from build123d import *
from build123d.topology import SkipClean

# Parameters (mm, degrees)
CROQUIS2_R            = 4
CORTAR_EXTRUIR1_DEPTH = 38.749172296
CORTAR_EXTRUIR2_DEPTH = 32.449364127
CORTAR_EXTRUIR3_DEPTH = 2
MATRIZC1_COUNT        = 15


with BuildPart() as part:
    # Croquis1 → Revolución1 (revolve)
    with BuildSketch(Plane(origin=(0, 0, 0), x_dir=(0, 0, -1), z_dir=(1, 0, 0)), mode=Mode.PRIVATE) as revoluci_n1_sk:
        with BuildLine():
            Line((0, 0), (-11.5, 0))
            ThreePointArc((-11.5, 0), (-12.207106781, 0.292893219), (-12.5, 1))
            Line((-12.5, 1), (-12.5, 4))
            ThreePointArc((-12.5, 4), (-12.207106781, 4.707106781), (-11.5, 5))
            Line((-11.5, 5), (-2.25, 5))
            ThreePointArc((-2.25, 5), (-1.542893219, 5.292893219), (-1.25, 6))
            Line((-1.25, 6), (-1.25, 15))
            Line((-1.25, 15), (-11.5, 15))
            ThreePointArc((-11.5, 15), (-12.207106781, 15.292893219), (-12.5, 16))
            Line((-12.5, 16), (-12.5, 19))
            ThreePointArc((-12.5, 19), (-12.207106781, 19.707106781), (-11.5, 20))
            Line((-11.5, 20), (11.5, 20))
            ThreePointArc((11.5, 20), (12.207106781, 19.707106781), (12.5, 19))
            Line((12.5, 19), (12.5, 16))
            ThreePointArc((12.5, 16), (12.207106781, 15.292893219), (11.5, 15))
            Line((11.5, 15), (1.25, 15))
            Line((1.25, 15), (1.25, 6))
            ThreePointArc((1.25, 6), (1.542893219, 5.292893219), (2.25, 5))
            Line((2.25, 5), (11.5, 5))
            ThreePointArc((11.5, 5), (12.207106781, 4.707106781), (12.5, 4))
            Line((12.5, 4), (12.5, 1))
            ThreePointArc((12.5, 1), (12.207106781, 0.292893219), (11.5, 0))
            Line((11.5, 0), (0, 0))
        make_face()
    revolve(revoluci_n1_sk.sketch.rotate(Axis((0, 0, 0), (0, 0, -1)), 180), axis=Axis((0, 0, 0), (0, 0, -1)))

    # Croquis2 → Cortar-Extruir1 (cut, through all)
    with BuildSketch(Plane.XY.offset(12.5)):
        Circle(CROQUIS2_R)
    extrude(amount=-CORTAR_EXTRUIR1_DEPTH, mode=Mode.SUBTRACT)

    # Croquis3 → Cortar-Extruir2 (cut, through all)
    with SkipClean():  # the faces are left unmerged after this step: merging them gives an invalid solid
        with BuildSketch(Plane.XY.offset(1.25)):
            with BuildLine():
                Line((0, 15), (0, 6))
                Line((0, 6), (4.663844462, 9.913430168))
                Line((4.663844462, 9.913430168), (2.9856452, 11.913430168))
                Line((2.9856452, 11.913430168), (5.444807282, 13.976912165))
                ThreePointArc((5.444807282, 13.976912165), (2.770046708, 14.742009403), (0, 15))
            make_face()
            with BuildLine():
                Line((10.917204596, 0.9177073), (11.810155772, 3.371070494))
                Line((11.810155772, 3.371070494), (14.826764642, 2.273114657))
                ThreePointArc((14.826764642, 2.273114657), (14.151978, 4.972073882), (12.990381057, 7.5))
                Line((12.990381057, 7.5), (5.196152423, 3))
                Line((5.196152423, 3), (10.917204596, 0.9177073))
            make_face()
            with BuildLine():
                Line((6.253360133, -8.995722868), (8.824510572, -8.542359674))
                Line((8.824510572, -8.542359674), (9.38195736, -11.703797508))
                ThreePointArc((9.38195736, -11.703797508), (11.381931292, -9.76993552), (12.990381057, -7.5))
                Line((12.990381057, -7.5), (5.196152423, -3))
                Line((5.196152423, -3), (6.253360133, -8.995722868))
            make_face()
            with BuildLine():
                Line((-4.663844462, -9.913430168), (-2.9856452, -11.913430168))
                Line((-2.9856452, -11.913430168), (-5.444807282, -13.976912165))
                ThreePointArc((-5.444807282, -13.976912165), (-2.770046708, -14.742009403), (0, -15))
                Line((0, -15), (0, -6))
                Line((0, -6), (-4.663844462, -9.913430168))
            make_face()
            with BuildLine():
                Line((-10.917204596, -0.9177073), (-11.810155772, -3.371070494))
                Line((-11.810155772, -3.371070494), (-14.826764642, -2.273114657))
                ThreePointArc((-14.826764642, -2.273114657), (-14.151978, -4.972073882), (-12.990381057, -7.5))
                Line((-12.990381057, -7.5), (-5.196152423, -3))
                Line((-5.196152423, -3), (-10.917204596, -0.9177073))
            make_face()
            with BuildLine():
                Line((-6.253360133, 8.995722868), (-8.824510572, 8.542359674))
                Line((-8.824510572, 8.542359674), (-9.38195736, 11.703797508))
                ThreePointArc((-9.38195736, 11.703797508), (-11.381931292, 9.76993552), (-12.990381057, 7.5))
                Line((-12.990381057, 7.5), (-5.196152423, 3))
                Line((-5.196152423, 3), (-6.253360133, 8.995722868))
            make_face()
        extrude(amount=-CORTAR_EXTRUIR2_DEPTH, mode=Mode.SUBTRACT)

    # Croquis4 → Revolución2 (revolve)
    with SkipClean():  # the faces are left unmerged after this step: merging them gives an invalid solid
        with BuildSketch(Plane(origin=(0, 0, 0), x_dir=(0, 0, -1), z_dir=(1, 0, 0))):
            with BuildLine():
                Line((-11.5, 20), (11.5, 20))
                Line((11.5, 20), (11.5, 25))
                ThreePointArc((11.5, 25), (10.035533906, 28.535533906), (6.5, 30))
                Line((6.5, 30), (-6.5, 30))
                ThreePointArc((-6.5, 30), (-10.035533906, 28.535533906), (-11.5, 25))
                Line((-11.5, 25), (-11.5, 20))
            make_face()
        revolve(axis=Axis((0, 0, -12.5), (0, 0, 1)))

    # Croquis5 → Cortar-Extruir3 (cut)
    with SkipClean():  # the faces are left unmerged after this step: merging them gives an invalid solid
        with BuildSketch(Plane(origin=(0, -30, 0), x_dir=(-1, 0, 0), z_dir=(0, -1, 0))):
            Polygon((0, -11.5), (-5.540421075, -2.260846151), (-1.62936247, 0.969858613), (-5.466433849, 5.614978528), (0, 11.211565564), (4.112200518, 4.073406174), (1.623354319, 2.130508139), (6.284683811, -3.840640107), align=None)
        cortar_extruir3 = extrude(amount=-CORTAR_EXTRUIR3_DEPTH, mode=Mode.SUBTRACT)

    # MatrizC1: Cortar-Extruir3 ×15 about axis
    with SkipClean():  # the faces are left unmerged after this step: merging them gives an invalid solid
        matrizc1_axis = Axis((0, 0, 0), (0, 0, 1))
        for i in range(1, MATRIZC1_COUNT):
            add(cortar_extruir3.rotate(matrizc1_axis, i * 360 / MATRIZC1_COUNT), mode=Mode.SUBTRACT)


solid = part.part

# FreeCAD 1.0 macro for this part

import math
import FreeCAD as App
import Part
import Sketcher
Q = App.Units.Quantity

doc = App.newDocument("Part")
params = doc.addObject("Spreadsheet::Sheet", "Params")
for row, (alias, value) in enumerate([
    ("sketch1_radius", "1 mm"),
    ("sketch1_width", "3 mm"),
    ("sketch1_width2", "9 mm"),
    ("sketch1_height", "23 mm"),
    ("sketch1_height2", "9.25 mm"),
    ("revolution_angle", "360 deg"),
    ("sketch2_diameter", "8 mm"),
    ("sketch3_radius", "15 mm"),
    ("sketch3_height", "9 mm"),
    ("sketch4_radius", "5 mm"),
    ("sketch4_width", "5 mm"),
    ("sketch4_height", "23 mm"),
    ("revolution2_angle", "360 deg"),
    ("pocket3_length", "2 mm"),
], start=1):
    params.set(f"A{row}", alias)
    params.set(f"B{row}", "=" + value)
    params.setAlias(f"B{row}", alias)

body = doc.addObject("PartDesign::Body", "Body")

sketch1 = doc.addObject("Sketcher::SketchObject", "Sketch")
body.addObject(sketch1)
sketch1.AttachmentSupport = (doc.YZ_Plane, [""])
sketch1.MapMode = "FlatFace"
sketch1.addGeometry(Part.ArcOfCircle(Part.Circle(App.Vector(1, 11.5, 0), App.Vector(0, 0, 1), 1), math.radians(90), math.radians(180)), False)
sketch1.addGeometry(Part.LineSegment(App.Vector(0, 11.5, 0), App.Vector(0, -11.5, 0)), False)
sketch1.addGeometry(Part.ArcOfCircle(Part.Circle(App.Vector(1, -11.5, 0), App.Vector(0, 0, 1), 1), math.radians(-180), math.radians(-90)), False)
sketch1.addGeometry(Part.LineSegment(App.Vector(1, -12.5, 0), App.Vector(4, -12.5, 0)), False)
sketch1.addGeometry(Part.ArcOfCircle(Part.Circle(App.Vector(4, -11.5, 0), App.Vector(0, 0, 1), 1), math.radians(-90), math.radians(0)), False)
sketch1.addGeometry(Part.LineSegment(App.Vector(5, -11.5, 0), App.Vector(5, -2.25, 0)), False)
sketch1.addGeometry(Part.ArcOfCircle(Part.Circle(App.Vector(6, -2.25, 0), App.Vector(0, 0, 1), 1), math.radians(90), math.radians(180)), False)
sketch1.addGeometry(Part.LineSegment(App.Vector(6, -1.25, 0), App.Vector(15, -1.25, 0)), False)
sketch1.addGeometry(Part.LineSegment(App.Vector(15, -1.25, 0), App.Vector(15, -11.5, 0)), False)
sketch1.addGeometry(Part.ArcOfCircle(Part.Circle(App.Vector(16, -11.5, 0), App.Vector(0, 0, 1), 1), math.radians(-180), math.radians(-90)), False)
sketch1.addGeometry(Part.LineSegment(App.Vector(16, -12.5, 0), App.Vector(19, -12.5, 0)), False)
sketch1.addGeometry(Part.ArcOfCircle(Part.Circle(App.Vector(19, -11.5, 0), App.Vector(0, 0, 1), 1), math.radians(-90), math.radians(0)), False)
sketch1.addGeometry(Part.LineSegment(App.Vector(20, -11.5, 0), App.Vector(20, 11.5, 0)), False)
sketch1.addGeometry(Part.ArcOfCircle(Part.Circle(App.Vector(19, 11.5, 0), App.Vector(0, 0, 1), 1), math.radians(0), math.radians(90)), False)
sketch1.addGeometry(Part.LineSegment(App.Vector(19, 12.5, 0), App.Vector(16, 12.5, 0)), False)
sketch1.addGeometry(Part.ArcOfCircle(Part.Circle(App.Vector(16, 11.5, 0), App.Vector(0, 0, 1), 1), math.radians(90), math.radians(180)), False)
sketch1.addGeometry(Part.LineSegment(App.Vector(15, 11.5, 0), App.Vector(15, 1.25, 0)), False)
sketch1.addGeometry(Part.LineSegment(App.Vector(15, 1.25, 0), App.Vector(6, 1.25, 0)), False)
sketch1.addGeometry(Part.ArcOfCircle(Part.Circle(App.Vector(6, 2.25, 0), App.Vector(0, 0, 1), 1), math.radians(-180), math.radians(-90)), False)
sketch1.addGeometry(Part.LineSegment(App.Vector(5, 2.25, 0), App.Vector(5, 11.5, 0)), False)
sketch1.addGeometry(Part.ArcOfCircle(Part.Circle(App.Vector(4, 11.5, 0), App.Vector(0, 0, 1), 1), math.radians(0), math.radians(90)), False)
sketch1.addGeometry(Part.LineSegment(App.Vector(4, 12.5, 0), App.Vector(1, 12.5, 0)), False)
sketch1.addConstraint(Sketcher.Constraint("Tangent", 0, 2, 1, 1))
sketch1.addConstraint(Sketcher.Constraint("Tangent", 1, 2, 2, 1))
sketch1.addConstraint(Sketcher.Constraint("Tangent", 2, 2, 3, 1))
sketch1.addConstraint(Sketcher.Constraint("Tangent", 3, 2, 4, 1))
sketch1.addConstraint(Sketcher.Constraint("Tangent", 4, 2, 5, 1))
sketch1.addConstraint(Sketcher.Constraint("Tangent", 5, 2, 6, 2))
sketch1.addConstraint(Sketcher.Constraint("Tangent", 6, 1, 7, 1))
sketch1.addConstraint(Sketcher.Constraint("Coincident", 7, 2, 8, 1))
sketch1.addConstraint(Sketcher.Constraint("Tangent", 8, 2, 9, 1))
sketch1.addConstraint(Sketcher.Constraint("Tangent", 9, 2, 10, 1))
sketch1.addConstraint(Sketcher.Constraint("Tangent", 10, 2, 11, 1))
sketch1.addConstraint(Sketcher.Constraint("Tangent", 11, 2, 12, 1))
sketch1.addConstraint(Sketcher.Constraint("Tangent", 12, 2, 13, 1))
sketch1.addConstraint(Sketcher.Constraint("Tangent", 13, 2, 14, 1))
sketch1.addConstraint(Sketcher.Constraint("Tangent", 14, 2, 15, 1))
sketch1.addConstraint(Sketcher.Constraint("Tangent", 15, 2, 16, 1))
sketch1.addConstraint(Sketcher.Constraint("Coincident", 16, 2, 17, 1))
sketch1.addConstraint(Sketcher.Constraint("Tangent", 17, 2, 18, 2))
sketch1.addConstraint(Sketcher.Constraint("Tangent", 18, 1, 19, 1))
sketch1.addConstraint(Sketcher.Constraint("Tangent", 19, 2, 20, 1))
sketch1.addConstraint(Sketcher.Constraint("Tangent", 20, 2, 21, 1))
sketch1.addConstraint(Sketcher.Constraint("Tangent", 21, 2, 0, 1))
sketch1.addConstraint(Sketcher.Constraint("Vertical", 1))
sketch1.addConstraint(Sketcher.Constraint("Horizontal", 3))
sketch1.addConstraint(Sketcher.Constraint("Vertical", 5))
sketch1.addConstraint(Sketcher.Constraint("Horizontal", 7))
sketch1.addConstraint(Sketcher.Constraint("Vertical", 8))
sketch1.addConstraint(Sketcher.Constraint("Horizontal", 10))
sketch1.addConstraint(Sketcher.Constraint("Vertical", 12))
sketch1.addConstraint(Sketcher.Constraint("Horizontal", 14))
sketch1.addConstraint(Sketcher.Constraint("Vertical", 16))
sketch1.addConstraint(Sketcher.Constraint("Horizontal", 17))
sketch1.addConstraint(Sketcher.Constraint("Vertical", 19))
sketch1.addConstraint(Sketcher.Constraint("Horizontal", 21))
sketch1.addConstraint(Sketcher.Constraint("Equal", 0, 2))
sketch1.addConstraint(Sketcher.Constraint("Equal", 2, 4))
sketch1.addConstraint(Sketcher.Constraint("Equal", 4, 6))
sketch1.addConstraint(Sketcher.Constraint("Equal", 6, 9))
sketch1.addConstraint(Sketcher.Constraint("Equal", 9, 11))
sketch1.addConstraint(Sketcher.Constraint("Equal", 11, 13))
sketch1.addConstraint(Sketcher.Constraint("Equal", 13, 15))
sketch1.addConstraint(Sketcher.Constraint("Equal", 15, 18))
sketch1.addConstraint(Sketcher.Constraint("Equal", 18, 20))
sketch1.addConstraint(Sketcher.Constraint("Symmetric", 0, 2, 1, 2, -1, 1))
sketch1.addConstraint(Sketcher.Constraint("Symmetric", 9, 3, 15, 3, -1))
sketch1.addConstraint(Sketcher.Constraint("Symmetric", 6, 3, 18, 3, -1))
sketch1.addConstraint(Sketcher.Constraint("Horizontal", 4, 3, 9, 3))
sketch1.addConstraint(Sketcher.Constraint("Equal", 3, 10))
sketch1.addConstraint(Sketcher.Constraint("Radius", 0, Q("1 mm")))
sketch1.addConstraint(Sketcher.Constraint("DistanceX", 3, 1, 3, 2, Q("3 mm")))
sketch1.addConstraint(Sketcher.Constraint("DistanceX", 7, 1, 7, 2, Q("9 mm")))
sketch1.addConstraint(Sketcher.Constraint("DistanceY", 1, 2, 1, 1, Q("23 mm")))
sketch1.addConstraint(Sketcher.Constraint("DistanceY", 5, 1, 5, 2, Q("9.25 mm")))
sketch1.setExpression("Constraints[48]", "Params.sketch1_radius")
sketch1.setExpression("Constraints[49]", "Params.sketch1_width")
sketch1.setExpression("Constraints[50]", "Params.sketch1_width2")
sketch1.setExpression("Constraints[51]", "Params.sketch1_height")
sketch1.setExpression("Constraints[52]", "Params.sketch1_height2")
revolution = doc.addObject("PartDesign::Revolution", "Revolution")
body.addObject(revolution)
revolution.Profile = sketch1
revolution.ReferenceAxis = (sketch1, ["V_Axis"])
revolution.setExpression("Angle", "Params.revolution_angle")

sketch2 = doc.addObject("Sketcher::SketchObject", "Sketch001")
body.addObject(sketch2)
sketch2.AttachmentSupport = (doc.XY_Plane, [""])
sketch2.MapMode = "FlatFace"
sketch2.AttachmentOffset = App.Placement(App.Vector(0, 0, 12.5), App.Rotation())
sketch2.addGeometry(Part.Circle(App.Vector(0, 0, 0), App.Vector(0, 0, 1), 4), False)
sketch2.addConstraint(Sketcher.Constraint("Coincident", 0, 3, -1, 1))
sketch2.addConstraint(Sketcher.Constraint("Diameter", 0, Q("8 mm")))
sketch2.setExpression("Constraints[1]", "Params.sketch2_diameter")
pocket1 = doc.addObject("PartDesign::Pocket", "Pocket")
body.addObject(pocket1)
pocket1.Profile = sketch2
pocket1.Type = "ThroughAll"

sketch3 = doc.addObject("Sketcher::SketchObject", "Sketch002")
body.addObject(sketch3)
sketch3.AttachmentSupport = (doc.XY_Plane, [""])
sketch3.MapMode = "FlatFace"
sketch3.AttachmentOffset = App.Placement(App.Vector(0, 0, 1.25), App.Rotation())
sketch3.addGeometry(Part.LineSegment(App.Vector(0, 15, 0), App.Vector(0, 6, 0)), False)
sketch3.addGeometry(Part.LineSegment(App.Vector(0, 6, 0), App.Vector(4.663844, 9.91343, 0)), False)
sketch3.addGeometry(Part.LineSegment(App.Vector(4.663844, 9.91343, 0), App.Vector(2.985645, 11.91343, 0)), False)
sketch3.addGeometry(Part.LineSegment(App.Vector(2.985645, 11.91343, 0), App.Vector(5.444807, 13.976912, 0)), False)
sketch3.addGeometry(Part.ArcOfCircle(Part.Circle(App.Vector(0, 0, 0), App.Vector(0, 0, 1), 15), math.radians(68.716239), math.radians(90)), False)
sketch3.addGeometry(Part.LineSegment(App.Vector(10.917205, 0.917707, 0), App.Vector(11.810156, 3.37107, 0)), False)
sketch3.addGeometry(Part.LineSegment(App.Vector(11.810156, 3.37107, 0), App.Vector(14.826765, 2.273115, 0)), False)
sketch3.addGeometry(Part.ArcOfCircle(Part.Circle(App.Vector(0, 0, 0), App.Vector(0, 0, 1), 15), math.radians(8.716239), math.radians(30)), False)
sketch3.addGeometry(Part.LineSegment(App.Vector(12.990381, 7.5, 0), App.Vector(5.196152, 3, 0)), False)
sketch3.addGeometry(Part.LineSegment(App.Vector(5.196152, 3, 0), App.Vector(10.917205, 0.917707, 0)), False)
sketch3.addGeometry(Part.LineSegment(App.Vector(6.25336, -8.995723, 0), App.Vector(8.824511, -8.54236, 0)), False)
sketch3.addGeometry(Part.LineSegment(App.Vector(8.824511, -8.54236, 0), App.Vector(9.381957, -11.703798, 0)), False)
sketch3.addGeometry(Part.ArcOfCircle(Part.Circle(App.Vector(0, 0, 0), App.Vector(0, 0, 1), 15), math.radians(-51.283761), math.radians(-30)), False)
sketch3.addGeometry(Part.LineSegment(App.Vector(12.990381, -7.5, 0), App.Vector(5.196152, -3, 0)), False)
sketch3.addGeometry(Part.LineSegment(App.Vector(5.196152, -3, 0), App.Vector(6.25336, -8.995723, 0)), False)
sketch3.addGeometry(Part.LineSegment(App.Vector(-4.663844, -9.91343, 0), App.Vector(-2.985645, -11.91343, 0)), False)
sketch3.addGeometry(Part.LineSegment(App.Vector(-2.985645, -11.91343, 0), App.Vector(-5.444807, -13.976912, 0)), False)
sketch3.addGeometry(Part.ArcOfCircle(Part.Circle(App.Vector(0, 0, 0), App.Vector(0, 0, 1), 15), math.radians(-111.283761), math.radians(-90)), False)
sketch3.addGeometry(Part.LineSegment(App.Vector(0, -15, 0), App.Vector(0, -6, 0)), False)
sketch3.addGeometry(Part.LineSegment(App.Vector(0, -6, 0), App.Vector(-4.663844, -9.91343, 0)), False)
sketch3.addGeometry(Part.LineSegment(App.Vector(-10.917205, -0.917707, 0), App.Vector(-11.810156, -3.37107, 0)), False)
sketch3.addGeometry(Part.LineSegment(App.Vector(-11.810156, -3.37107, 0), App.Vector(-14.826765, -2.273115, 0)), False)
sketch3.addGeometry(Part.ArcOfCircle(Part.Circle(App.Vector(0, 0, 0), App.Vector(0, 0, 1), 15), math.radians(-171.283761), math.radians(-150)), False)
sketch3.addGeometry(Part.LineSegment(App.Vector(-12.990381, -7.5, 0), App.Vector(-5.196152, -3, 0)), False)
sketch3.addGeometry(Part.LineSegment(App.Vector(-5.196152, -3, 0), App.Vector(-10.917205, -0.917707, 0)), False)
sketch3.addGeometry(Part.LineSegment(App.Vector(-6.25336, 8.995723, 0), App.Vector(-8.824511, 8.54236, 0)), False)
sketch3.addGeometry(Part.LineSegment(App.Vector(-8.824511, 8.54236, 0), App.Vector(-9.381957, 11.703798, 0)), False)
sketch3.addGeometry(Part.ArcOfCircle(Part.Circle(App.Vector(0, 0, 0), App.Vector(0, 0, 1), 15), math.radians(128.716239), math.radians(150)), False)
sketch3.addGeometry(Part.LineSegment(App.Vector(-12.990381, 7.5, 0), App.Vector(-5.196152, 3, 0)), False)
sketch3.addGeometry(Part.LineSegment(App.Vector(-5.196152, 3, 0), App.Vector(-6.25336, 8.995723, 0)), False)
sketch3.addConstraint(Sketcher.Constraint("Coincident", 0, 2, 1, 1))
sketch3.addConstraint(Sketcher.Constraint("Coincident", 1, 2, 2, 1))
sketch3.addConstraint(Sketcher.Constraint("Coincident", 2, 2, 3, 1))
sketch3.addConstraint(Sketcher.Constraint("Coincident", 3, 2, 4, 1))
sketch3.addConstraint(Sketcher.Constraint("Coincident", 4, 2, 0, 1))
sketch3.addConstraint(Sketcher.Constraint("Coincident", 5, 2, 6, 1))
sketch3.addConstraint(Sketcher.Constraint("Coincident", 6, 2, 7, 1))
sketch3.addConstraint(Sketcher.Constraint("Coincident", 7, 2, 8, 1))
sketch3.addConstraint(Sketcher.Constraint("Coincident", 8, 2, 9, 1))
sketch3.addConstraint(Sketcher.Constraint("Coincident", 9, 2, 5, 1))
sketch3.addConstraint(Sketcher.Constraint("Coincident", 10, 2, 11, 1))
sketch3.addConstraint(Sketcher.Constraint("Coincident", 11, 2, 12, 1))
sketch3.addConstraint(Sketcher.Constraint("Coincident", 12, 2, 13, 1))
sketch3.addConstraint(Sketcher.Constraint("Coincident", 13, 2, 14, 1))
sketch3.addConstraint(Sketcher.Constraint("Coincident", 14, 2, 10, 1))
sketch3.addConstraint(Sketcher.Constraint("Coincident", 15, 2, 16, 1))
sketch3.addConstraint(Sketcher.Constraint("Coincident", 16, 2, 17, 1))
sketch3.addConstraint(Sketcher.Constraint("Coincident", 17, 2, 18, 1))
sketch3.addConstraint(Sketcher.Constraint("Coincident", 18, 2, 19, 1))
sketch3.addConstraint(Sketcher.Constraint("Coincident", 19, 2, 15, 1))
sketch3.addConstraint(Sketcher.Constraint("Coincident", 20, 2, 21, 1))
sketch3.addConstraint(Sketcher.Constraint("Coincident", 21, 2, 22, 1))
sketch3.addConstraint(Sketcher.Constraint("Coincident", 22, 2, 23, 1))
sketch3.addConstraint(Sketcher.Constraint("Coincident", 23, 2, 24, 1))
sketch3.addConstraint(Sketcher.Constraint("Coincident", 24, 2, 20, 1))
sketch3.addConstraint(Sketcher.Constraint("Coincident", 25, 2, 26, 1))
sketch3.addConstraint(Sketcher.Constraint("Coincident", 26, 2, 27, 1))
sketch3.addConstraint(Sketcher.Constraint("Coincident", 27, 2, 28, 1))
sketch3.addConstraint(Sketcher.Constraint("Coincident", 28, 2, 29, 1))
sketch3.addConstraint(Sketcher.Constraint("Coincident", 29, 2, 25, 1))
sketch3.addConstraint(Sketcher.Constraint("Vertical", 0))
sketch3.addConstraint(Sketcher.Constraint("Vertical", 18))
sketch3.addConstraint(Sketcher.Constraint("Coincident", 4, 3, -1, 1))
sketch3.addConstraint(Sketcher.Constraint("Coincident", 7, 3, -1, 1))
sketch3.addConstraint(Sketcher.Constraint("Coincident", 12, 3, -1, 1))
sketch3.addConstraint(Sketcher.Constraint("Coincident", 17, 3, -1, 1))
sketch3.addConstraint(Sketcher.Constraint("Coincident", 22, 3, -1, 1))
sketch3.addConstraint(Sketcher.Constraint("Coincident", 27, 3, -1, 1))
sketch3.addConstraint(Sketcher.Constraint("Equal", 4, 7))
sketch3.addConstraint(Sketcher.Constraint("Equal", 7, 12))
sketch3.addConstraint(Sketcher.Constraint("Equal", 12, 17))
sketch3.addConstraint(Sketcher.Constraint("Equal", 17, 22))
sketch3.addConstraint(Sketcher.Constraint("Equal", 22, 27))
sketch3.addConstraint(Sketcher.Constraint("Symmetric", 2, 2, 15, 2, -1, 1))
sketch3.addConstraint(Sketcher.Constraint("Symmetric", 0, 2, 18, 2, -1, 1))
sketch3.addConstraint(Sketcher.Constraint("Symmetric", 1, 2, 19, 2, -1, 1))
sketch3.addConstraint(Sketcher.Constraint("Symmetric", 5, 2, 20, 2, -1, 1))
sketch3.addConstraint(Sketcher.Constraint("Symmetric", 8, 2, 23, 2, -1, 1))
sketch3.addConstraint(Sketcher.Constraint("Symmetric", 9, 2, 24, 2, -1, 1))
sketch3.addConstraint(Sketcher.Constraint("Symmetric", 10, 2, 25, 2, -1, 1))
sketch3.addConstraint(Sketcher.Constraint("Symmetric", 13, 2, 28, 2, -1, 1))
sketch3.addConstraint(Sketcher.Constraint("Symmetric", 14, 2, 29, 2, -1, 1))
sketch3.addConstraint(Sketcher.Constraint("Symmetric", 13, 2, 23, 2, -2))
sketch3.addConstraint(Sketcher.Constraint("PointOnObject", 0, 2, -2))
sketch3.addConstraint(Sketcher.Constraint("Perpendicular", 1, 2))
sketch3.addConstraint(Sketcher.Constraint("Perpendicular", 2, 3))
sketch3.addConstraint(Sketcher.Constraint("Perpendicular", 5, 6))
sketch3.addConstraint(Sketcher.Constraint("Parallel", 6, 9))
sketch3.addConstraint(Sketcher.Constraint("Perpendicular", 10, 11))
sketch3.addConstraint(Sketcher.Constraint("Parallel", 11, 14))
sketch3.addConstraint(Sketcher.Constraint("Perpendicular", 15, 16))
sketch3.addConstraint(Sketcher.Constraint("Perpendicular", 20, 21))
sketch3.addConstraint(Sketcher.Constraint("Parallel", 8, 23))
sketch3.addConstraint(Sketcher.Constraint("Perpendicular", 25, 26))
sketch3.addConstraint(Sketcher.Constraint("Parallel", 13, 28))
sketch3.addConstraint(Sketcher.Constraint("Horizontal", 12, 2, 22, 2))
sketch3.addConstraint(Sketcher.Constraint("Equal", 2, 5))
sketch3.addConstraint(Sketcher.Constraint("Equal", 3, 6))
sketch3.addConstraint(Sketcher.Constraint("Equal", 1, 9))
sketch3.addConstraint(Sketcher.Constraint("Equal", 5, 10))
sketch3.addConstraint(Sketcher.Constraint("Equal", 6, 11))
sketch3.addConstraint(Sketcher.Constraint("Equal", 9, 14))
sketch3.addConstraint(Sketcher.Constraint("Radius", 4, Q("15 mm")))
sketch3.addConstraint(Sketcher.Constraint("DistanceY", 0, 2, 0, 1, Q("9 mm")))
sketch3.addConstraint(Sketcher.Constraint("Angle", 1, Q("40 deg")))
sketch3.addConstraint(Sketcher.Constraint("Angle", 5, Q("70 deg")))
sketch3.addConstraint(Sketcher.Constraint("Angle", 8, Q("-150 deg")))
sketch3.addConstraint(Sketcher.Constraint("Angle", 10, Q("10 deg")))
sketch3.addConstraint(Sketcher.Constraint("DistanceY", 1, 2, 2, 2, Q("2 mm")))
sketch3.addConstraint(Sketcher.Constraint("Distance", 3, Q("3.210208 mm")))
sketch3.setExpression("Constraints[72]", "Params.sketch3_radius")
sketch3.setExpression("Constraints[73]", "Params.sketch3_height")
pocket2 = doc.addObject("PartDesign::Pocket", "Pocket001")
body.addObject(pocket2)
pocket2.Profile = sketch3
pocket2.Type = "ThroughAll"

sketch4 = doc.addObject("Sketcher::SketchObject", "Sketch003")
body.addObject(sketch4)
sketch4.AttachmentSupport = (doc.YZ_Plane, [""])
sketch4.MapMode = "FlatFace"
sketch4.addGeometry(Part.LineSegment(App.Vector(20, 11.5, 0), App.Vector(20, -11.5, 0)), False)
sketch4.addGeometry(Part.LineSegment(App.Vector(20, -11.5, 0), App.Vector(25, -11.5, 0)), False)
sketch4.addGeometry(Part.ArcOfCircle(Part.Circle(App.Vector(25, -6.5, 0), App.Vector(0, 0, 1), 5), math.radians(-90), math.radians(0)), False)
sketch4.addGeometry(Part.LineSegment(App.Vector(30, -6.5, 0), App.Vector(30, 6.5, 0)), False)
sketch4.addGeometry(Part.ArcOfCircle(Part.Circle(App.Vector(25, 6.5, 0), App.Vector(0, 0, 1), 5), math.radians(0), math.radians(90)), False)
sketch4.addGeometry(Part.LineSegment(App.Vector(25, 11.5, 0), App.Vector(20, 11.5, 0)), False)
sketch4.addConstraint(Sketcher.Constraint("Coincident", 0, 2, 1, 1))
sketch4.addConstraint(Sketcher.Constraint("Tangent", 1, 2, 2, 1))
sketch4.addConstraint(Sketcher.Constraint("Tangent", 2, 2, 3, 1))
sketch4.addConstraint(Sketcher.Constraint("Tangent", 3, 2, 4, 1))
sketch4.addConstraint(Sketcher.Constraint("Tangent", 4, 2, 5, 1))
sketch4.addConstraint(Sketcher.Constraint("Coincident", 5, 2, 0, 1))
sketch4.addConstraint(Sketcher.Constraint("Vertical", 0))
sketch4.addConstraint(Sketcher.Constraint("Horizontal", 1))
sketch4.addConstraint(Sketcher.Constraint("Vertical", 3))
sketch4.addConstraint(Sketcher.Constraint("Horizontal", 5))
sketch4.addConstraint(Sketcher.Constraint("Equal", 2, 4))
sketch4.addConstraint(Sketcher.Constraint("Radius", 2, Q("5 mm")))
sketch4.addConstraint(Sketcher.Constraint("DistanceX", 1, 1, 1, 2, Q("5 mm")))
sketch4.addConstraint(Sketcher.Constraint("DistanceY", 0, 2, 0, 1, Q("23 mm")))
sketch4.addConstraint(Sketcher.Constraint("DistanceX", -1, 1, 2, 3, Q("25 mm")))
sketch4.addConstraint(Sketcher.Constraint("DistanceY", 2, 3, -1, 1, Q("6.5 mm")))
sketch4.setExpression("Constraints[11]", "Params.sketch4_radius")
sketch4.setExpression("Constraints[12]", "Params.sketch4_width")
sketch4.setExpression("Constraints[13]", "Params.sketch4_height")
revolution2 = doc.addObject("PartDesign::Revolution", "Revolution001")
body.addObject(revolution2)
revolution2.Profile = sketch4
revolution2.ReferenceAxis = (sketch4, ["V_Axis"])
revolution2.setExpression("Angle", "Params.revolution2_angle")

sketch5 = doc.addObject("Sketcher::SketchObject", "Sketch004")
body.addObject(sketch5)
sketch5.AttachmentSupport = (doc.XZ_Plane, [""])
sketch5.MapMode = "FlatFace"
sketch5.AttachmentOffset = App.Placement(App.Vector(0, 0, 30), App.Rotation())
sketch5.addGeometry(Part.LineSegment(App.Vector(5.540421, 2.260846, 0), App.Vector(0, 11.5, 0)), False)
sketch5.addGeometry(Part.LineSegment(App.Vector(0, 11.5, 0), App.Vector(-6.284684, 3.84064, 0)), False)
sketch5.addGeometry(Part.LineSegment(App.Vector(-6.284684, 3.84064, 0), App.Vector(-1.623354, -2.130508, 0)), False)
sketch5.addGeometry(Part.LineSegment(App.Vector(-1.623354, -2.130508, 0), App.Vector(-4.112201, -4.073406, 0)), False)
sketch5.addGeometry(Part.LineSegment(App.Vector(-4.112201, -4.073406, 0), App.Vector(0, -11.211566, 0)), False)
sketch5.addGeometry(Part.LineSegment(App.Vector(0, -11.211566, 0), App.Vector(5.466434, -5.614979, 0)), False)
sketch5.addGeometry(Part.LineSegment(App.Vector(5.466434, -5.614979, 0), App.Vector(1.629362, -0.969859, 0)), False)
sketch5.addGeometry(Part.LineSegment(App.Vector(1.629362, -0.969859, 0), App.Vector(5.540421, 2.260846, 0)), False)
sketch5.addConstraint(Sketcher.Constraint("Coincident", 0, 2, 1, 1))
sketch5.addConstraint(Sketcher.Constraint("Coincident", 1, 2, 2, 1))
sketch5.addConstraint(Sketcher.Constraint("Coincident", 2, 2, 3, 1))
sketch5.addConstraint(Sketcher.Constraint("Coincident", 3, 2, 4, 1))
sketch5.addConstraint(Sketcher.Constraint("Coincident", 4, 2, 5, 1))
sketch5.addConstraint(Sketcher.Constraint("Coincident", 5, 2, 6, 1))
sketch5.addConstraint(Sketcher.Constraint("Coincident", 6, 2, 7, 1))
sketch5.addConstraint(Sketcher.Constraint("Coincident", 7, 2, 0, 1))
sketch5.addConstraint(Sketcher.Constraint("PointOnObject", 0, 2, -2))
sketch5.addConstraint(Sketcher.Constraint("PointOnObject", 4, 2, -2))
sketch5.addConstraint(Sketcher.Constraint("Perpendicular", 2, 3))
sketch5.addConstraint(Sketcher.Constraint("Perpendicular", 6, 7))
sketch5.addConstraint(Sketcher.Constraint("DistanceY", -1, 1, 0, 2, Q("11.5 mm")))
sketch5.addConstraint(Sketcher.Constraint("DistanceX", 3, 2, -1, 1, Q("4.112201 mm")))
sketch5.addConstraint(Sketcher.Constraint("DistanceY", 3, 2, 2, 2, Q("1.942898 mm")))
sketch5.addConstraint(Sketcher.Constraint("DistanceY", 6, 2, 1, 2, Q("4.810499 mm")))
sketch5.addConstraint(Sketcher.Constraint("Distance", 2, Q("7.575131 mm")))
sketch5.addConstraint(Sketcher.Constraint("Distance", 4, Q("8.237931 mm")))
sketch5.addConstraint(Sketcher.Constraint("Distance", 5, Q("7.823278 mm")))
sketch5.addConstraint(Sketcher.Constraint("Distance", 6, Q("6.024969 mm")))
sketch5.addConstraint(Sketcher.Constraint("DistanceY", -1, 1, 1, 2, Q("3.84064 mm")))
sketch5.addConstraint(Sketcher.Constraint("DistanceY", 2, 2, -1, 1, Q("2.130508 mm")))
sketch5.addConstraint(Sketcher.Constraint("DistanceY", 5, 2, -1, 1, Q("5.614979 mm")))
sketch5.addConstraint(Sketcher.Constraint("DistanceX", -1, 1, 7, 2, Q("5.540421 mm")))
pocket3 = doc.addObject("PartDesign::Pocket", "Pocket002")
body.addObject(pocket3)
pocket3.Profile = sketch5
pocket3.setExpression("Length", "Params.pocket3_length")
doc.recompute()

polarpattern = doc.addObject("PartDesign::PolarPattern", "PolarPattern")
body.addObject(polarpattern)
polarpattern.Originals = [pocket3]
polarpattern.Axis = (doc.Z_Axis, [""])
polarpattern.Angle = 360
polarpattern.Occurrences = 15
body.Tip = polarpattern

doc.recompute()
